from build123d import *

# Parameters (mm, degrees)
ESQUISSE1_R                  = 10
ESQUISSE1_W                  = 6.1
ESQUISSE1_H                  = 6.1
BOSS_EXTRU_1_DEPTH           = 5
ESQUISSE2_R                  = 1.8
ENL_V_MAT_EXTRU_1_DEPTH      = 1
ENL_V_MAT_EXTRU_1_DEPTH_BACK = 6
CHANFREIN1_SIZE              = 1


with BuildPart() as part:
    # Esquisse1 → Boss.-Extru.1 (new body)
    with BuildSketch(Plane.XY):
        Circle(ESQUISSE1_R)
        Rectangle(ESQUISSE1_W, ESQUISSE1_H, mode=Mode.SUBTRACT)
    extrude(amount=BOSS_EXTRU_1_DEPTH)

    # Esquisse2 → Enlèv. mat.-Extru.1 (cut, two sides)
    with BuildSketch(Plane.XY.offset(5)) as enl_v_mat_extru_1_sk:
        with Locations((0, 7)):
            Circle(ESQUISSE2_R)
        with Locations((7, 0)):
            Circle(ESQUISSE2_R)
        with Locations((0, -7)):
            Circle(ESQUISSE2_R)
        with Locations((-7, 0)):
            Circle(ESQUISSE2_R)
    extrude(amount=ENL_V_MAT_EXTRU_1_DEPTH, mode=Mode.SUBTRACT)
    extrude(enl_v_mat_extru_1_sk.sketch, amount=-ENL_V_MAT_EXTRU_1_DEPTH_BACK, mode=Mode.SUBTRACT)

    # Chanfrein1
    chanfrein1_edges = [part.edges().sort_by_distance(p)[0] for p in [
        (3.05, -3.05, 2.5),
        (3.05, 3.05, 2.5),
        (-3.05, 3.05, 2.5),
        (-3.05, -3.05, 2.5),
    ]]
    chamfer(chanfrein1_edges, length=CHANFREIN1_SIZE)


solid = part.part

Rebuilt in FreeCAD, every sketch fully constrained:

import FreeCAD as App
import Part
import Sketcher
Q = App.Units.Quantity


def edges_at(feature, points):
    """Names of the edges that pass closest to the given points."""
    edges = feature.Shape.Edges
    near = lambda p: min(range(len(edges)), key=lambda i: edges[i].distToShape(Part.Vertex(*p))[0])
    return sorted({f"Edge{near(p) + 1}" for p in points})

doc = App.newDocument("Part")
params = doc.addObject("Spreadsheet::Sheet", "Params")
for row, (alias, value) in enumerate([
    ("sketch1_diameter", "20 mm"),
    ("sketch1_width", "6.1 mm"),
    ("pad1_length", "5 mm"),
    ("sketch2_diameter", "3.6 mm"),
    ("chamfer_size", "1 mm"),
], start=1):
    params.set(f"A{row}", alias)
    params.set(f"B{row}", "=" + value)
    params.setAlias(f"B{row}", alias)

body = doc.addObject("PartDesign::Body", "Body")

# Sketch on XY plane
sketch1 = body.newObject("Sketcher::SketchObject", "Sketch")
sketch1.AttachmentSupport = (doc.getObject("XY_Plane"), [""])
sketch1.MapMode = "FlatFace"
sketch1.addGeometry([
    Part.Circle(App.Vector(0, 0, 0), App.Vector(0, 0, 1), 10),  # 0
    Part.LineSegment(App.Vector(3.05, -3.05, 0), App.Vector(-3.05, -3.05, 0)),  # 1
    Part.LineSegment(App.Vector(-3.05, -3.05, 0), App.Vector(-3.05, 3.05, 0)),  # 2
    Part.LineSegment(App.Vector(-3.05, 3.05, 0), App.Vector(3.05, 3.05, 0)),  # 3
    Part.LineSegment(App.Vector(3.05, 3.05, 0), App.Vector(3.05, -3.05, 0)),  # 4
], False)
sketch1.addConstraint([
    Sketcher.Constraint("Coincident", 1, 2, 2, 1),
    Sketcher.Constraint("Coincident", 2, 2, 3, 1),
    Sketcher.Constraint("Coincident", 3, 2, 4, 1),
    Sketcher.Constraint("Coincident", 4, 2, 1, 1),
    Sketcher.Constraint("Horizontal", 1),
    Sketcher.Constraint("Vertical", 2),
    Sketcher.Constraint("Horizontal", 3),
    Sketcher.Constraint("Vertical", 4),
    Sketcher.Constraint("Coincident", 0, 3, -1, 1),
    Sketcher.Constraint("Symmetric", 1, 2, 3, 2, -1, 1),
    Sketcher.Constraint("Equal", 3, 2),
    Sketcher.Constraint("Diameter", 0, Q("20 mm")),
    Sketcher.Constraint("DistanceX", 1, 2, 1, 1, Q("6.1 mm")),
])
sketch1.setExpression("Constraints[11]", "Params.sketch1_diameter")
sketch1.setExpression("Constraints[12]", "Params.sketch1_width")
pad1 = body.newObject("PartDesign::Pad", "Pad")
pad1.Profile = sketch1
pad1.setExpression("Length", "Params.pad1_length")

# Sketch on XY plane
sketch2 = body.newObject("Sketcher::SketchObject", "Sketch001")
sketch2.AttachmentSupport = (doc.getObject("XY_Plane"), [""])
sketch2.MapMode = "FlatFace"
sketch2.AttachmentOffset = App.Placement(App.Vector(0, 0, 5), App.Rotation())
sketch2.addGeometry([
    Part.Circle(App.Vector(0, 7, 0), App.Vector(0, 0, 1), 1.8),
    Part.Circle(App.Vector(7, 0, 0), App.Vector(0, 0, 1), 1.8),
    Part.Circle(App.Vector(0, -7, 0), App.Vector(0, 0, 1), 1.8),
    Part.Circle(App.Vector(-7, 0, 0), App.Vector(0, 0, 1), 1.8),
], False)
sketch2.addConstraint([
    Sketcher.Constraint("Equal", 0, 1),
    Sketcher.Constraint("Equal", 1, 2),
    Sketcher.Constraint("Equal", 2, 3),
    Sketcher.Constraint("Symmetric", 0, 3, 2, 3, -1, 1),
    Sketcher.Constraint("Symmetric", 1, 3, 3, 3, -1, 1),
    Sketcher.Constraint("PointOnObject", 0, 3, -2),
    Sketcher.Constraint("PointOnObject", 1, 3, -1),
    Sketcher.Constraint("Diameter", 0, Q("3.6 mm")),
    Sketcher.Constraint("DistanceY", -1, 1, 0, 3, Q("7 mm")),
    Sketcher.Constraint("DistanceX", -1, 1, 1, 3, Q("7 mm")),
])
sketch2.setExpression("Constraints[7]", "Params.sketch2_diameter")
pocket1 = body.newObject("PartDesign::Pocket", "Pocket")
pocket1.Profile = sketch2
pocket1.Type = "ThroughAll"
pocket1.Midplane = True
doc.recompute()

chamfer = body.newObject("PartDesign::Chamfer", "Chamfer")
chamfer.Base = (pocket1, edges_at(pocket1, [
    (3.05, -3.05, 2.5),
    (3.05, 3.05, 2.5),
    (-3.05, 3.05, 2.5),
    (-3.05, -3.05, 2.5),
]))
chamfer.setExpression("Size", "Params.chamfer_size")

doc.recompute()
